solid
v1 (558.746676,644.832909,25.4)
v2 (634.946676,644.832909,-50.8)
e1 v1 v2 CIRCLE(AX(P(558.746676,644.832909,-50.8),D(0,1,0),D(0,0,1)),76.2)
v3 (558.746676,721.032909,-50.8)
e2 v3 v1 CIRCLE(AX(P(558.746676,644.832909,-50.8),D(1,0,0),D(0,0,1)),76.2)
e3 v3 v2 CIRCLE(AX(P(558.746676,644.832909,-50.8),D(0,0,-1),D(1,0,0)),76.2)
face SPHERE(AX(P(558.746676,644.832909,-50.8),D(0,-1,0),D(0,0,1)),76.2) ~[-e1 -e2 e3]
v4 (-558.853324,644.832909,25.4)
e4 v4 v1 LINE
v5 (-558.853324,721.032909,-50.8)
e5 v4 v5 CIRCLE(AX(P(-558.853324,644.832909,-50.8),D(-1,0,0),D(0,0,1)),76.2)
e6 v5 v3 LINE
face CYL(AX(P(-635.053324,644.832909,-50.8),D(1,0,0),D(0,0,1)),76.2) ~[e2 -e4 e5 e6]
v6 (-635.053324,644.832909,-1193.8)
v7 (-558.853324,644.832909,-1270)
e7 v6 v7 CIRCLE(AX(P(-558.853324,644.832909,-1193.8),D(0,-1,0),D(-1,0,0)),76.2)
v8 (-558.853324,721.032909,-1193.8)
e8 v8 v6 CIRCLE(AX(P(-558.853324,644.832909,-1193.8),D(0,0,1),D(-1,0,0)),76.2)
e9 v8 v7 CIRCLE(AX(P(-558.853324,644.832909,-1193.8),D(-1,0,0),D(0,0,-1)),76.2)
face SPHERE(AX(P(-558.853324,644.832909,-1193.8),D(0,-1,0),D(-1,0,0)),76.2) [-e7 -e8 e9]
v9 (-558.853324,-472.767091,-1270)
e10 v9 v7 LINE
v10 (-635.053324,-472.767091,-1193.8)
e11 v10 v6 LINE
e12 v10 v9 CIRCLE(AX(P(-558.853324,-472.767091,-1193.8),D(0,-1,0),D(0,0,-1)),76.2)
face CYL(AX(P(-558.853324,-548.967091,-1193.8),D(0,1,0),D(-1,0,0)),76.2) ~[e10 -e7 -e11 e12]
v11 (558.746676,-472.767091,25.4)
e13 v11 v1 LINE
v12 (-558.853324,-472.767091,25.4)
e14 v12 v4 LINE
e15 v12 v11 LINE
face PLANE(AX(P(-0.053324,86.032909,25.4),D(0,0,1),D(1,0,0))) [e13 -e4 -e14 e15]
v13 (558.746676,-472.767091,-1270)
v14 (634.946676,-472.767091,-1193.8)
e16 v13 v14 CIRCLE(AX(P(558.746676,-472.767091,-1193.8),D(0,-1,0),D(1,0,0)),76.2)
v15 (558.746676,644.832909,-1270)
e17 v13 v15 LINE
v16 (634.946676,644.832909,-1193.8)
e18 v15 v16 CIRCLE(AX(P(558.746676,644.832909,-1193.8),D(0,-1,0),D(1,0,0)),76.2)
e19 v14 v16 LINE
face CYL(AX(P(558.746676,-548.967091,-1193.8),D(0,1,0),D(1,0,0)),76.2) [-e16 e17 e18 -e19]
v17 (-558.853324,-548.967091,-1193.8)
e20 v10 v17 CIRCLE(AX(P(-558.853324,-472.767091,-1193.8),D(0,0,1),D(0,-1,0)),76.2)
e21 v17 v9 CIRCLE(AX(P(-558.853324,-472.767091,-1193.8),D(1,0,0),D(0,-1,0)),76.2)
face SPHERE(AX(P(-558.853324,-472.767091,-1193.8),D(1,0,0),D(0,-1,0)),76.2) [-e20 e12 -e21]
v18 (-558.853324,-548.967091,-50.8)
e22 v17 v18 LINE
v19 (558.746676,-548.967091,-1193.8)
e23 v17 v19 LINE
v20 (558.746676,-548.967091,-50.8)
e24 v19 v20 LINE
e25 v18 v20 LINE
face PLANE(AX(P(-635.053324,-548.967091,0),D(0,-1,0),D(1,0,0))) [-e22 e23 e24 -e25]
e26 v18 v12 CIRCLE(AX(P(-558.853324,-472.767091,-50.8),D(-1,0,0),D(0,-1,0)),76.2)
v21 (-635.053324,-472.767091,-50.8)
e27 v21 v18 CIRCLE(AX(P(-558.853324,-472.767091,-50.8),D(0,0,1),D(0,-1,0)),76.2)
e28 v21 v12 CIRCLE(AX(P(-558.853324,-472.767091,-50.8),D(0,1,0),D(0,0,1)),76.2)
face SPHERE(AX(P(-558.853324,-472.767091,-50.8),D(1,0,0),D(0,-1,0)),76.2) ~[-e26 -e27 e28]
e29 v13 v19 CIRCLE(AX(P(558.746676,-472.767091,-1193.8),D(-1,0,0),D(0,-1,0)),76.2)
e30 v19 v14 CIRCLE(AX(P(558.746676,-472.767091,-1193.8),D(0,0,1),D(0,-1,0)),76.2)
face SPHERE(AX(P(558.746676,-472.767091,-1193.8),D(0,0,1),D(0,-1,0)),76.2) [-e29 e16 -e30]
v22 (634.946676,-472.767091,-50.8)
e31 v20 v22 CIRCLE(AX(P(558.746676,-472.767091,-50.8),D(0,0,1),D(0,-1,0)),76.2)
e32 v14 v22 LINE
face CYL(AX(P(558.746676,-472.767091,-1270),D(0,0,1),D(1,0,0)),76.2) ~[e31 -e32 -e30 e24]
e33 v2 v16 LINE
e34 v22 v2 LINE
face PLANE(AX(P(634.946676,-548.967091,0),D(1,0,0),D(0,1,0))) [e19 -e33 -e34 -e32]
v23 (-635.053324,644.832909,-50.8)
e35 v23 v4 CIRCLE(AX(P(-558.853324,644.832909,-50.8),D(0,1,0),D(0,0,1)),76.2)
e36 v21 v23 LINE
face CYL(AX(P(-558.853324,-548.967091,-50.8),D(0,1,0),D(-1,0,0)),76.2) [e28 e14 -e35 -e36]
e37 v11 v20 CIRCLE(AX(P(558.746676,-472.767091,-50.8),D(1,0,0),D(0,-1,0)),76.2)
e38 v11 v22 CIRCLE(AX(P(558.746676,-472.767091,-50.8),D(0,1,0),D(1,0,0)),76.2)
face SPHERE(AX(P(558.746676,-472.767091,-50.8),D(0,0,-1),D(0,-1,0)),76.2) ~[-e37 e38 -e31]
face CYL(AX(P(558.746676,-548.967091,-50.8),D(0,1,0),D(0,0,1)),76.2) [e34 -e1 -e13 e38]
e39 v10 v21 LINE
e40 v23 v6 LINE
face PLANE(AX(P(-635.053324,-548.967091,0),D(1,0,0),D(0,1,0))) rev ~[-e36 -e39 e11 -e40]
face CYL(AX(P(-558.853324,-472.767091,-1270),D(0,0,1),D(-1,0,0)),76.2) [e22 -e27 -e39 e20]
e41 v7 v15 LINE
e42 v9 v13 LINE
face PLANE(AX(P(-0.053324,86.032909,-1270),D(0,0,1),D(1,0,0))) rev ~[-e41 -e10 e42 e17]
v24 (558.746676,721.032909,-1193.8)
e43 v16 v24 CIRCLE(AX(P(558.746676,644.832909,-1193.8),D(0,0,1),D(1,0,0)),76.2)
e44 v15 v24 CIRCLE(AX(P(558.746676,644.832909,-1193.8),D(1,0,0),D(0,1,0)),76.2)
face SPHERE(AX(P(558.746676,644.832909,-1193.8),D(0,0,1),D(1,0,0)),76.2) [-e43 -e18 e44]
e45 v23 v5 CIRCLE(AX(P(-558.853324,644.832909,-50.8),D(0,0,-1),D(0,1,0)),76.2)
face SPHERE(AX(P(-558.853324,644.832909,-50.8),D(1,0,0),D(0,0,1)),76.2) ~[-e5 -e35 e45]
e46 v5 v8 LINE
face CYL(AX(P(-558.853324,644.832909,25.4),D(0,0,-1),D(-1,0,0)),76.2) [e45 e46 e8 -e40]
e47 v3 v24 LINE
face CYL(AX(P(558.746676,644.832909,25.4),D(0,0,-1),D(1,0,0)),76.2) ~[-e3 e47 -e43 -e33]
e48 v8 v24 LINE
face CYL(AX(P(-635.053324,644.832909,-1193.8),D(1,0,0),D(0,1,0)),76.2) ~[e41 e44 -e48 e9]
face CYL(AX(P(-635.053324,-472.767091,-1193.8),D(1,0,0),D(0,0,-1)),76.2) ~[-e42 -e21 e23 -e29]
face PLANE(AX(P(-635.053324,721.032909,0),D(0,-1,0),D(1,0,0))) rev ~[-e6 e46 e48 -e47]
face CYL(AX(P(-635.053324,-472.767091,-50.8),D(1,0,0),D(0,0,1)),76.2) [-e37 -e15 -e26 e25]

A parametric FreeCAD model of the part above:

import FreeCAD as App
import Part
import Sketcher
Q = App.Units.Quantity


def add_polygon(sketch, points):
    """Adds a closed chain of lines whose ends are joined by coincident constraints."""
    first, n = sketch.GeometryCount, len(points)
    for a, b in zip(points, points[1:] + points[:1]):
        sketch.addGeometry(Part.LineSegment(App.Vector(*a, 0), App.Vector(*b, 0)), False)
    for i in range(n):
        sketch.addConstraint(Sketcher.Constraint("Coincident", first + i, 2, first + (i + 1) % n, 1))

doc = App.newDocument("Part")
body = doc.addObject("PartDesign::Body", "Body")

# Sketch on XY plane
sketch1 = body.newObject("Sketcher::SketchObject", "Sketch")
sketch1.AttachmentSupport = (doc.getObject("XY_Plane"), [""])
sketch1.MapMode = "FlatFace"
add_polygon(sketch1, [(-635, 721), (-635, -549), (635, -549), (635, 721)])  # lines 0-3
sketch1.addConstraint([
    Sketcher.Constraint("Vertical", 0),
    Sketcher.Constraint("Horizontal", 1),
    Sketcher.Constraint("Vertical", 2),
    Sketcher.Constraint("Horizontal", 3),
    Sketcher.Constraint("Equal", 3, 0),
    Sketcher.Constraint("DistanceX", 1, 1, 1, 2, Q("50 in")),
    Sketcher.Constraint("DistanceY", 0, 2, -1, 1, Q("548.967091 mm")),
    Sketcher.Constraint("DistanceX", 0, 2, -1, 1, Q("635.053324 mm")),
])
pad1 = body.newObject("PartDesign::Pad", "Pad")
pad1.Profile = sketch1
pad1.Length = Q("1 in")

# Sketch on XY plane
sketch2 = body.newObject("Sketcher::SketchObject", "Sketch001")
sketch2.AttachmentSupport = (doc.getObject("XY_Plane"), [""])
sketch2.MapMode = "FlatFace"
add_polygon(sketch2, [(-635, 721), (-635, -549), (635, -549), (635, 721)])  # lines 0-3
sketch2.addConstraint([
    Sketcher.Constraint("Vertical", 0),
    Sketcher.Constraint("Horizontal", 1),
    Sketcher.Constraint("Vertical", 2),
    Sketcher.Constraint("Horizontal", 3),
    Sketcher.Constraint("Equal", 3, 0),
    Sketcher.Constraint("DistanceX", 1, 1, 1, 2, Q("50 in")),
    Sketcher.Constraint("DistanceY", 0, 2, -1, 1, Q("548.967091 mm")),
    Sketcher.Constraint("DistanceX", 0, 2, -1, 1, Q("635.053324 mm")),
])
pad2 = body.newObject("PartDesign::Pad", "Pad001")
pad2.Profile = sketch2
pad2.Length = Q("50 in")
pad2.Reversed = True
doc.recompute()

fillet = body.newObject("PartDesign::Fillet", "Fillet")
fillet.Base = (pad2, ["Edge1"])
fillet.UseAllEdges = True
fillet.Radius = Q("3 in")

doc.recompute()
